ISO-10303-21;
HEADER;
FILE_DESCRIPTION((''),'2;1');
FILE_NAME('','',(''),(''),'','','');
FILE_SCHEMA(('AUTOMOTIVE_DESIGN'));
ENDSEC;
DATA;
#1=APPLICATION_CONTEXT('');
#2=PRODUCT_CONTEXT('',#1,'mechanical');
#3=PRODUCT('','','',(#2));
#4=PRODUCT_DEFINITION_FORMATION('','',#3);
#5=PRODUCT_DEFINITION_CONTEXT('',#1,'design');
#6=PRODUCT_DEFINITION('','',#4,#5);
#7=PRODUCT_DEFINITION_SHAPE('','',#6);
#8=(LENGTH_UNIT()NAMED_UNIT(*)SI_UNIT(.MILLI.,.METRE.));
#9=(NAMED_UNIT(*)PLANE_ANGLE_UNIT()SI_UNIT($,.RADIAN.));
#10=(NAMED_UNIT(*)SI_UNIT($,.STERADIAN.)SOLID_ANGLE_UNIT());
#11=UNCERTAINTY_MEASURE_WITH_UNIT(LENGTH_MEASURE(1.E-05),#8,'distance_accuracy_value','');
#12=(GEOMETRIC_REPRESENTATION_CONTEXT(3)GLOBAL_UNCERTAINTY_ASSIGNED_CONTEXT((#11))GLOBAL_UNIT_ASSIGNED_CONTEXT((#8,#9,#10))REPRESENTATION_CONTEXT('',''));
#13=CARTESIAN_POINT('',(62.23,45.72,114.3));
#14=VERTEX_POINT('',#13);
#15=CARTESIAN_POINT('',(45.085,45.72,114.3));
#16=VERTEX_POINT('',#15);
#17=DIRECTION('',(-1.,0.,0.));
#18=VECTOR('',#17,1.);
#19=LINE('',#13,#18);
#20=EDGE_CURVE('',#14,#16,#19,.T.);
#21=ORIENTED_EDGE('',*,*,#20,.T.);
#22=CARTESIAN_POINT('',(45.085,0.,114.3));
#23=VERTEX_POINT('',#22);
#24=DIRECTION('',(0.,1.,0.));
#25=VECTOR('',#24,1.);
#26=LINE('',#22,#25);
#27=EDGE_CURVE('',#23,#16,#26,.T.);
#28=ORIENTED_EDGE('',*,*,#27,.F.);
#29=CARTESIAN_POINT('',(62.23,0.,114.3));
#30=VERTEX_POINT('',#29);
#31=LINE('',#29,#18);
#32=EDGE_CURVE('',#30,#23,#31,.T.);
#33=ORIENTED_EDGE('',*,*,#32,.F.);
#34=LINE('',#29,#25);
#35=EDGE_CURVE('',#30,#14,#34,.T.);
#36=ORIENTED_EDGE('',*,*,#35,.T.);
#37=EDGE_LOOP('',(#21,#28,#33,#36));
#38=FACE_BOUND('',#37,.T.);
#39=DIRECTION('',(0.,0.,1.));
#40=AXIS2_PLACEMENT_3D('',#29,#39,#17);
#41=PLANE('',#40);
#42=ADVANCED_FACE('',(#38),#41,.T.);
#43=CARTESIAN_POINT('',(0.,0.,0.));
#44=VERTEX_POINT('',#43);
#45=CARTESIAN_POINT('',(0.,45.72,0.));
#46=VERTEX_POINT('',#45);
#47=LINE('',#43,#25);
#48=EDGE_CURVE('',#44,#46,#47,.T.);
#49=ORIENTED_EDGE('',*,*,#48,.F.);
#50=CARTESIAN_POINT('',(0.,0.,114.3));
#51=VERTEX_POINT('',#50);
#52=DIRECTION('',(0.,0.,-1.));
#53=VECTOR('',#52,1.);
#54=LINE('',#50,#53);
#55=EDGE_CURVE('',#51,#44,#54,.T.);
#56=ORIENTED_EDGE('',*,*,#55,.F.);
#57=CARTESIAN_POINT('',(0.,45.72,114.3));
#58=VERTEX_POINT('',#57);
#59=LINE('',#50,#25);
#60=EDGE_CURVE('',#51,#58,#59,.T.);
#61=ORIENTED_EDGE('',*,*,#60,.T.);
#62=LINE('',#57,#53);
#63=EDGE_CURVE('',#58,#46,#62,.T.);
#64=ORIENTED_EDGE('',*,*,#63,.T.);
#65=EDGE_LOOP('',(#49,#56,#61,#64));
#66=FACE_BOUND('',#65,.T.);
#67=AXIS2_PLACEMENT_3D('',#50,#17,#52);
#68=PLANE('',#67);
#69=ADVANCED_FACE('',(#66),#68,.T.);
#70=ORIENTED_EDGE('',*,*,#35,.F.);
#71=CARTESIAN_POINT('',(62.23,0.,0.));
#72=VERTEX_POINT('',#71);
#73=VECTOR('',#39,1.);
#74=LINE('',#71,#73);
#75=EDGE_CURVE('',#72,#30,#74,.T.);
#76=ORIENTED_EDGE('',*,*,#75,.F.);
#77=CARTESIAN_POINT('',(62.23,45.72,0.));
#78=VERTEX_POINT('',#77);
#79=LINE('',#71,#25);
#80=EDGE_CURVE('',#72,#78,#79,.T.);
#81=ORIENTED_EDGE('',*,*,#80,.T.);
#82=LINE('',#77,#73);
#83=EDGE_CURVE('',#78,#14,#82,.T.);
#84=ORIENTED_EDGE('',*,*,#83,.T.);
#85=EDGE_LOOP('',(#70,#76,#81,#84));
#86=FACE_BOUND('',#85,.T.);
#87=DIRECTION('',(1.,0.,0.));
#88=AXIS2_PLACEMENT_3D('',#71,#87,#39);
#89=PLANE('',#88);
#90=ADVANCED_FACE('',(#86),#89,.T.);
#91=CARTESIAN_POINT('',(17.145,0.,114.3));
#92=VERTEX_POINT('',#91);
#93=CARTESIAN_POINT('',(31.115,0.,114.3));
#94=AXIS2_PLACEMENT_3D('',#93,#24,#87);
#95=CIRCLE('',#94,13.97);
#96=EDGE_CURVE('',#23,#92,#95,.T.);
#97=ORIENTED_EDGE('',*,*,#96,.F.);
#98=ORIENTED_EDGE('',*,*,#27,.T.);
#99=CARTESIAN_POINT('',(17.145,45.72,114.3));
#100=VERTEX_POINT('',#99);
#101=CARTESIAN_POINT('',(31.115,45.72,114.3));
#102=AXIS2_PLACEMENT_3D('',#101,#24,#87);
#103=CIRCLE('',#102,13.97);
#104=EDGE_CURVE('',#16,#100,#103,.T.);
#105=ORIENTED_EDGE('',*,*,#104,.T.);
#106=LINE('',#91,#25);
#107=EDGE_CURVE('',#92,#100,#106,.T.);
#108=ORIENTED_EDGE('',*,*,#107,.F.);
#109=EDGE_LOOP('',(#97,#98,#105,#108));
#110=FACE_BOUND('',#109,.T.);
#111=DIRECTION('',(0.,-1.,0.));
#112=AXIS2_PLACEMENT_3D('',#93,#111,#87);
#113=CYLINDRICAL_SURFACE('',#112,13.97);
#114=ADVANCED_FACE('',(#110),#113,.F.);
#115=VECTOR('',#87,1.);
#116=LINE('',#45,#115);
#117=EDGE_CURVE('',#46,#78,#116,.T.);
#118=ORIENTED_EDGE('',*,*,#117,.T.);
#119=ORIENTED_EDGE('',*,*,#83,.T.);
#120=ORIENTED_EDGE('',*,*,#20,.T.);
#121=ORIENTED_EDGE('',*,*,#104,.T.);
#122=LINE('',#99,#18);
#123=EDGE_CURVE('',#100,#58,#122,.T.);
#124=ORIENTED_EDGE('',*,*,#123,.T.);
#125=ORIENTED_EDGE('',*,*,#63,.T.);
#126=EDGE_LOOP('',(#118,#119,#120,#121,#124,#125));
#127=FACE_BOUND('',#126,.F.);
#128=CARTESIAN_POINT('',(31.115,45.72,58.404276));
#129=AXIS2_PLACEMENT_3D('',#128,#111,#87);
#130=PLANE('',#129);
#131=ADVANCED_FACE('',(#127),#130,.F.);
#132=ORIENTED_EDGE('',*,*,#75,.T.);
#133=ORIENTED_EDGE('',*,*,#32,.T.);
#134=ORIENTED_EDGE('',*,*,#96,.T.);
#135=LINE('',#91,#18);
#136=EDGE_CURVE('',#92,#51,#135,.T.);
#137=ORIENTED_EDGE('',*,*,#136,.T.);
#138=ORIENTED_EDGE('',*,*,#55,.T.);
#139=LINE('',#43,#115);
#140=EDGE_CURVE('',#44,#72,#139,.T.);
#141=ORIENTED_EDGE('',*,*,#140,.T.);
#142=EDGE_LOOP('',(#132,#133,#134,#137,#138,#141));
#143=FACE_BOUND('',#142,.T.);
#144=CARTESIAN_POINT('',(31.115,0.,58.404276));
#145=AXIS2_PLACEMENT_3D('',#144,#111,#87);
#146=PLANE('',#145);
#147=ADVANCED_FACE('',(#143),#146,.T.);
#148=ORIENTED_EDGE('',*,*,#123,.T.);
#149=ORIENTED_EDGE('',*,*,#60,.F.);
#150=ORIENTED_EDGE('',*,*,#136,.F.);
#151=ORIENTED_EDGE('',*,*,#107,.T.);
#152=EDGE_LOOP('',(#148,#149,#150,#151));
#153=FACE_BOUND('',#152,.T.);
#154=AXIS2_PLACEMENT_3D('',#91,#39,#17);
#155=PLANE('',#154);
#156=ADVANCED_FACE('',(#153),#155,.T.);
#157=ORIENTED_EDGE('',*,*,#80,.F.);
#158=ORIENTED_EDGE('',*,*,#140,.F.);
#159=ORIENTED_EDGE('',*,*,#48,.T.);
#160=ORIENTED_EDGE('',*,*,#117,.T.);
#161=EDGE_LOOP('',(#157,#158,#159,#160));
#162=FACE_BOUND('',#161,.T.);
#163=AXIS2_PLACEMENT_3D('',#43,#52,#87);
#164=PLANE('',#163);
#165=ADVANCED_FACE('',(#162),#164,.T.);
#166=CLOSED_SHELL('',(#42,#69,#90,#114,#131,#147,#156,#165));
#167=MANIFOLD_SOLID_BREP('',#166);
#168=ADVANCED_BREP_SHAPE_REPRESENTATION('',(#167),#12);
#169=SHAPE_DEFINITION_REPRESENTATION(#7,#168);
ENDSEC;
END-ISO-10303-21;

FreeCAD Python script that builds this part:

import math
import FreeCAD as App
import Part
import Sketcher
from FreeCAD import Vector
Q = App.Units.Quantity

doc = App.newDocument("Part")
body = doc.addObject("PartDesign::Body", "Body")

# Sketch on XZ plane
sketch1 = body.newObject("Sketcher::SketchObject", "Sketch")
sketch1.AttachmentSupport = (doc.getObject("XZ_Plane"), [""])
sketch1.MapMode = "FlatFace"
sketch1.addGeometry([
    Part.LineSegment(Vector(0, 114, 0), Vector(0, 0, 0)),  # 0
    Part.LineSegment(Vector(0, 0, 0), Vector(62, 0, 0)),  # 1
    Part.LineSegment(Vector(62, 0, 0), Vector(62, 114, 0)),  # 2
    Part.LineSegment(Vector(62, 114, 0), Vector(45, 114, 0)),  # 3
    Part.ArcOfCircle(Part.Circle(Vector(31, 114, 0), Vector(0, 0, 1), 14), math.radians(180), math.radians(360)),  # 4
    Part.LineSegment(Vector(17, 114, 0), Vector(0, 114, 0)),  # 5
], False)
sketch1.addConstraint([
    Sketcher.Constraint("Coincident", 0, 2, 1, 1),
    Sketcher.Constraint("Coincident", 1, 2, 2, 1),
    Sketcher.Constraint("Coincident", 2, 2, 3, 1),
    Sketcher.Constraint("Coincident", 3, 2, 4, 2),
    Sketcher.Constraint("Coincident", 4, 1, 5, 1),
    Sketcher.Constraint("Coincident", 5, 2, 0, 1),
    Sketcher.Constraint("Vertical", 0),
    Sketcher.Constraint("Horizontal", 1),
    Sketcher.Constraint("Vertical", 2),
    Sketcher.Constraint("Horizontal", 3),
    Sketcher.Constraint("Horizontal", 5),
    Sketcher.Constraint("Coincident", 0, 2, -1, 1),
    Sketcher.Constraint("Horizontal", 4, 3, 2, 2),
    Sketcher.Constraint("Horizontal", 3, 2, 4, 1),
    Sketcher.Constraint("Equal", 3, 5),
    Sketcher.Constraint("Radius", 4, Q("0.55 in")),
    Sketcher.Constraint("DistanceY", 0, 2, 0, 1, Q("4.5 in")),
    Sketcher.Constraint("DistanceX", 1, 1, 1, 2, Q("2.45 in")),
])
pad1 = body.newObject("PartDesign::Pad", "Pad")
pad1.Profile = sketch1
pad1.Length = Q("1.8 in")
pad1.Reversed = True

doc.recompute()
